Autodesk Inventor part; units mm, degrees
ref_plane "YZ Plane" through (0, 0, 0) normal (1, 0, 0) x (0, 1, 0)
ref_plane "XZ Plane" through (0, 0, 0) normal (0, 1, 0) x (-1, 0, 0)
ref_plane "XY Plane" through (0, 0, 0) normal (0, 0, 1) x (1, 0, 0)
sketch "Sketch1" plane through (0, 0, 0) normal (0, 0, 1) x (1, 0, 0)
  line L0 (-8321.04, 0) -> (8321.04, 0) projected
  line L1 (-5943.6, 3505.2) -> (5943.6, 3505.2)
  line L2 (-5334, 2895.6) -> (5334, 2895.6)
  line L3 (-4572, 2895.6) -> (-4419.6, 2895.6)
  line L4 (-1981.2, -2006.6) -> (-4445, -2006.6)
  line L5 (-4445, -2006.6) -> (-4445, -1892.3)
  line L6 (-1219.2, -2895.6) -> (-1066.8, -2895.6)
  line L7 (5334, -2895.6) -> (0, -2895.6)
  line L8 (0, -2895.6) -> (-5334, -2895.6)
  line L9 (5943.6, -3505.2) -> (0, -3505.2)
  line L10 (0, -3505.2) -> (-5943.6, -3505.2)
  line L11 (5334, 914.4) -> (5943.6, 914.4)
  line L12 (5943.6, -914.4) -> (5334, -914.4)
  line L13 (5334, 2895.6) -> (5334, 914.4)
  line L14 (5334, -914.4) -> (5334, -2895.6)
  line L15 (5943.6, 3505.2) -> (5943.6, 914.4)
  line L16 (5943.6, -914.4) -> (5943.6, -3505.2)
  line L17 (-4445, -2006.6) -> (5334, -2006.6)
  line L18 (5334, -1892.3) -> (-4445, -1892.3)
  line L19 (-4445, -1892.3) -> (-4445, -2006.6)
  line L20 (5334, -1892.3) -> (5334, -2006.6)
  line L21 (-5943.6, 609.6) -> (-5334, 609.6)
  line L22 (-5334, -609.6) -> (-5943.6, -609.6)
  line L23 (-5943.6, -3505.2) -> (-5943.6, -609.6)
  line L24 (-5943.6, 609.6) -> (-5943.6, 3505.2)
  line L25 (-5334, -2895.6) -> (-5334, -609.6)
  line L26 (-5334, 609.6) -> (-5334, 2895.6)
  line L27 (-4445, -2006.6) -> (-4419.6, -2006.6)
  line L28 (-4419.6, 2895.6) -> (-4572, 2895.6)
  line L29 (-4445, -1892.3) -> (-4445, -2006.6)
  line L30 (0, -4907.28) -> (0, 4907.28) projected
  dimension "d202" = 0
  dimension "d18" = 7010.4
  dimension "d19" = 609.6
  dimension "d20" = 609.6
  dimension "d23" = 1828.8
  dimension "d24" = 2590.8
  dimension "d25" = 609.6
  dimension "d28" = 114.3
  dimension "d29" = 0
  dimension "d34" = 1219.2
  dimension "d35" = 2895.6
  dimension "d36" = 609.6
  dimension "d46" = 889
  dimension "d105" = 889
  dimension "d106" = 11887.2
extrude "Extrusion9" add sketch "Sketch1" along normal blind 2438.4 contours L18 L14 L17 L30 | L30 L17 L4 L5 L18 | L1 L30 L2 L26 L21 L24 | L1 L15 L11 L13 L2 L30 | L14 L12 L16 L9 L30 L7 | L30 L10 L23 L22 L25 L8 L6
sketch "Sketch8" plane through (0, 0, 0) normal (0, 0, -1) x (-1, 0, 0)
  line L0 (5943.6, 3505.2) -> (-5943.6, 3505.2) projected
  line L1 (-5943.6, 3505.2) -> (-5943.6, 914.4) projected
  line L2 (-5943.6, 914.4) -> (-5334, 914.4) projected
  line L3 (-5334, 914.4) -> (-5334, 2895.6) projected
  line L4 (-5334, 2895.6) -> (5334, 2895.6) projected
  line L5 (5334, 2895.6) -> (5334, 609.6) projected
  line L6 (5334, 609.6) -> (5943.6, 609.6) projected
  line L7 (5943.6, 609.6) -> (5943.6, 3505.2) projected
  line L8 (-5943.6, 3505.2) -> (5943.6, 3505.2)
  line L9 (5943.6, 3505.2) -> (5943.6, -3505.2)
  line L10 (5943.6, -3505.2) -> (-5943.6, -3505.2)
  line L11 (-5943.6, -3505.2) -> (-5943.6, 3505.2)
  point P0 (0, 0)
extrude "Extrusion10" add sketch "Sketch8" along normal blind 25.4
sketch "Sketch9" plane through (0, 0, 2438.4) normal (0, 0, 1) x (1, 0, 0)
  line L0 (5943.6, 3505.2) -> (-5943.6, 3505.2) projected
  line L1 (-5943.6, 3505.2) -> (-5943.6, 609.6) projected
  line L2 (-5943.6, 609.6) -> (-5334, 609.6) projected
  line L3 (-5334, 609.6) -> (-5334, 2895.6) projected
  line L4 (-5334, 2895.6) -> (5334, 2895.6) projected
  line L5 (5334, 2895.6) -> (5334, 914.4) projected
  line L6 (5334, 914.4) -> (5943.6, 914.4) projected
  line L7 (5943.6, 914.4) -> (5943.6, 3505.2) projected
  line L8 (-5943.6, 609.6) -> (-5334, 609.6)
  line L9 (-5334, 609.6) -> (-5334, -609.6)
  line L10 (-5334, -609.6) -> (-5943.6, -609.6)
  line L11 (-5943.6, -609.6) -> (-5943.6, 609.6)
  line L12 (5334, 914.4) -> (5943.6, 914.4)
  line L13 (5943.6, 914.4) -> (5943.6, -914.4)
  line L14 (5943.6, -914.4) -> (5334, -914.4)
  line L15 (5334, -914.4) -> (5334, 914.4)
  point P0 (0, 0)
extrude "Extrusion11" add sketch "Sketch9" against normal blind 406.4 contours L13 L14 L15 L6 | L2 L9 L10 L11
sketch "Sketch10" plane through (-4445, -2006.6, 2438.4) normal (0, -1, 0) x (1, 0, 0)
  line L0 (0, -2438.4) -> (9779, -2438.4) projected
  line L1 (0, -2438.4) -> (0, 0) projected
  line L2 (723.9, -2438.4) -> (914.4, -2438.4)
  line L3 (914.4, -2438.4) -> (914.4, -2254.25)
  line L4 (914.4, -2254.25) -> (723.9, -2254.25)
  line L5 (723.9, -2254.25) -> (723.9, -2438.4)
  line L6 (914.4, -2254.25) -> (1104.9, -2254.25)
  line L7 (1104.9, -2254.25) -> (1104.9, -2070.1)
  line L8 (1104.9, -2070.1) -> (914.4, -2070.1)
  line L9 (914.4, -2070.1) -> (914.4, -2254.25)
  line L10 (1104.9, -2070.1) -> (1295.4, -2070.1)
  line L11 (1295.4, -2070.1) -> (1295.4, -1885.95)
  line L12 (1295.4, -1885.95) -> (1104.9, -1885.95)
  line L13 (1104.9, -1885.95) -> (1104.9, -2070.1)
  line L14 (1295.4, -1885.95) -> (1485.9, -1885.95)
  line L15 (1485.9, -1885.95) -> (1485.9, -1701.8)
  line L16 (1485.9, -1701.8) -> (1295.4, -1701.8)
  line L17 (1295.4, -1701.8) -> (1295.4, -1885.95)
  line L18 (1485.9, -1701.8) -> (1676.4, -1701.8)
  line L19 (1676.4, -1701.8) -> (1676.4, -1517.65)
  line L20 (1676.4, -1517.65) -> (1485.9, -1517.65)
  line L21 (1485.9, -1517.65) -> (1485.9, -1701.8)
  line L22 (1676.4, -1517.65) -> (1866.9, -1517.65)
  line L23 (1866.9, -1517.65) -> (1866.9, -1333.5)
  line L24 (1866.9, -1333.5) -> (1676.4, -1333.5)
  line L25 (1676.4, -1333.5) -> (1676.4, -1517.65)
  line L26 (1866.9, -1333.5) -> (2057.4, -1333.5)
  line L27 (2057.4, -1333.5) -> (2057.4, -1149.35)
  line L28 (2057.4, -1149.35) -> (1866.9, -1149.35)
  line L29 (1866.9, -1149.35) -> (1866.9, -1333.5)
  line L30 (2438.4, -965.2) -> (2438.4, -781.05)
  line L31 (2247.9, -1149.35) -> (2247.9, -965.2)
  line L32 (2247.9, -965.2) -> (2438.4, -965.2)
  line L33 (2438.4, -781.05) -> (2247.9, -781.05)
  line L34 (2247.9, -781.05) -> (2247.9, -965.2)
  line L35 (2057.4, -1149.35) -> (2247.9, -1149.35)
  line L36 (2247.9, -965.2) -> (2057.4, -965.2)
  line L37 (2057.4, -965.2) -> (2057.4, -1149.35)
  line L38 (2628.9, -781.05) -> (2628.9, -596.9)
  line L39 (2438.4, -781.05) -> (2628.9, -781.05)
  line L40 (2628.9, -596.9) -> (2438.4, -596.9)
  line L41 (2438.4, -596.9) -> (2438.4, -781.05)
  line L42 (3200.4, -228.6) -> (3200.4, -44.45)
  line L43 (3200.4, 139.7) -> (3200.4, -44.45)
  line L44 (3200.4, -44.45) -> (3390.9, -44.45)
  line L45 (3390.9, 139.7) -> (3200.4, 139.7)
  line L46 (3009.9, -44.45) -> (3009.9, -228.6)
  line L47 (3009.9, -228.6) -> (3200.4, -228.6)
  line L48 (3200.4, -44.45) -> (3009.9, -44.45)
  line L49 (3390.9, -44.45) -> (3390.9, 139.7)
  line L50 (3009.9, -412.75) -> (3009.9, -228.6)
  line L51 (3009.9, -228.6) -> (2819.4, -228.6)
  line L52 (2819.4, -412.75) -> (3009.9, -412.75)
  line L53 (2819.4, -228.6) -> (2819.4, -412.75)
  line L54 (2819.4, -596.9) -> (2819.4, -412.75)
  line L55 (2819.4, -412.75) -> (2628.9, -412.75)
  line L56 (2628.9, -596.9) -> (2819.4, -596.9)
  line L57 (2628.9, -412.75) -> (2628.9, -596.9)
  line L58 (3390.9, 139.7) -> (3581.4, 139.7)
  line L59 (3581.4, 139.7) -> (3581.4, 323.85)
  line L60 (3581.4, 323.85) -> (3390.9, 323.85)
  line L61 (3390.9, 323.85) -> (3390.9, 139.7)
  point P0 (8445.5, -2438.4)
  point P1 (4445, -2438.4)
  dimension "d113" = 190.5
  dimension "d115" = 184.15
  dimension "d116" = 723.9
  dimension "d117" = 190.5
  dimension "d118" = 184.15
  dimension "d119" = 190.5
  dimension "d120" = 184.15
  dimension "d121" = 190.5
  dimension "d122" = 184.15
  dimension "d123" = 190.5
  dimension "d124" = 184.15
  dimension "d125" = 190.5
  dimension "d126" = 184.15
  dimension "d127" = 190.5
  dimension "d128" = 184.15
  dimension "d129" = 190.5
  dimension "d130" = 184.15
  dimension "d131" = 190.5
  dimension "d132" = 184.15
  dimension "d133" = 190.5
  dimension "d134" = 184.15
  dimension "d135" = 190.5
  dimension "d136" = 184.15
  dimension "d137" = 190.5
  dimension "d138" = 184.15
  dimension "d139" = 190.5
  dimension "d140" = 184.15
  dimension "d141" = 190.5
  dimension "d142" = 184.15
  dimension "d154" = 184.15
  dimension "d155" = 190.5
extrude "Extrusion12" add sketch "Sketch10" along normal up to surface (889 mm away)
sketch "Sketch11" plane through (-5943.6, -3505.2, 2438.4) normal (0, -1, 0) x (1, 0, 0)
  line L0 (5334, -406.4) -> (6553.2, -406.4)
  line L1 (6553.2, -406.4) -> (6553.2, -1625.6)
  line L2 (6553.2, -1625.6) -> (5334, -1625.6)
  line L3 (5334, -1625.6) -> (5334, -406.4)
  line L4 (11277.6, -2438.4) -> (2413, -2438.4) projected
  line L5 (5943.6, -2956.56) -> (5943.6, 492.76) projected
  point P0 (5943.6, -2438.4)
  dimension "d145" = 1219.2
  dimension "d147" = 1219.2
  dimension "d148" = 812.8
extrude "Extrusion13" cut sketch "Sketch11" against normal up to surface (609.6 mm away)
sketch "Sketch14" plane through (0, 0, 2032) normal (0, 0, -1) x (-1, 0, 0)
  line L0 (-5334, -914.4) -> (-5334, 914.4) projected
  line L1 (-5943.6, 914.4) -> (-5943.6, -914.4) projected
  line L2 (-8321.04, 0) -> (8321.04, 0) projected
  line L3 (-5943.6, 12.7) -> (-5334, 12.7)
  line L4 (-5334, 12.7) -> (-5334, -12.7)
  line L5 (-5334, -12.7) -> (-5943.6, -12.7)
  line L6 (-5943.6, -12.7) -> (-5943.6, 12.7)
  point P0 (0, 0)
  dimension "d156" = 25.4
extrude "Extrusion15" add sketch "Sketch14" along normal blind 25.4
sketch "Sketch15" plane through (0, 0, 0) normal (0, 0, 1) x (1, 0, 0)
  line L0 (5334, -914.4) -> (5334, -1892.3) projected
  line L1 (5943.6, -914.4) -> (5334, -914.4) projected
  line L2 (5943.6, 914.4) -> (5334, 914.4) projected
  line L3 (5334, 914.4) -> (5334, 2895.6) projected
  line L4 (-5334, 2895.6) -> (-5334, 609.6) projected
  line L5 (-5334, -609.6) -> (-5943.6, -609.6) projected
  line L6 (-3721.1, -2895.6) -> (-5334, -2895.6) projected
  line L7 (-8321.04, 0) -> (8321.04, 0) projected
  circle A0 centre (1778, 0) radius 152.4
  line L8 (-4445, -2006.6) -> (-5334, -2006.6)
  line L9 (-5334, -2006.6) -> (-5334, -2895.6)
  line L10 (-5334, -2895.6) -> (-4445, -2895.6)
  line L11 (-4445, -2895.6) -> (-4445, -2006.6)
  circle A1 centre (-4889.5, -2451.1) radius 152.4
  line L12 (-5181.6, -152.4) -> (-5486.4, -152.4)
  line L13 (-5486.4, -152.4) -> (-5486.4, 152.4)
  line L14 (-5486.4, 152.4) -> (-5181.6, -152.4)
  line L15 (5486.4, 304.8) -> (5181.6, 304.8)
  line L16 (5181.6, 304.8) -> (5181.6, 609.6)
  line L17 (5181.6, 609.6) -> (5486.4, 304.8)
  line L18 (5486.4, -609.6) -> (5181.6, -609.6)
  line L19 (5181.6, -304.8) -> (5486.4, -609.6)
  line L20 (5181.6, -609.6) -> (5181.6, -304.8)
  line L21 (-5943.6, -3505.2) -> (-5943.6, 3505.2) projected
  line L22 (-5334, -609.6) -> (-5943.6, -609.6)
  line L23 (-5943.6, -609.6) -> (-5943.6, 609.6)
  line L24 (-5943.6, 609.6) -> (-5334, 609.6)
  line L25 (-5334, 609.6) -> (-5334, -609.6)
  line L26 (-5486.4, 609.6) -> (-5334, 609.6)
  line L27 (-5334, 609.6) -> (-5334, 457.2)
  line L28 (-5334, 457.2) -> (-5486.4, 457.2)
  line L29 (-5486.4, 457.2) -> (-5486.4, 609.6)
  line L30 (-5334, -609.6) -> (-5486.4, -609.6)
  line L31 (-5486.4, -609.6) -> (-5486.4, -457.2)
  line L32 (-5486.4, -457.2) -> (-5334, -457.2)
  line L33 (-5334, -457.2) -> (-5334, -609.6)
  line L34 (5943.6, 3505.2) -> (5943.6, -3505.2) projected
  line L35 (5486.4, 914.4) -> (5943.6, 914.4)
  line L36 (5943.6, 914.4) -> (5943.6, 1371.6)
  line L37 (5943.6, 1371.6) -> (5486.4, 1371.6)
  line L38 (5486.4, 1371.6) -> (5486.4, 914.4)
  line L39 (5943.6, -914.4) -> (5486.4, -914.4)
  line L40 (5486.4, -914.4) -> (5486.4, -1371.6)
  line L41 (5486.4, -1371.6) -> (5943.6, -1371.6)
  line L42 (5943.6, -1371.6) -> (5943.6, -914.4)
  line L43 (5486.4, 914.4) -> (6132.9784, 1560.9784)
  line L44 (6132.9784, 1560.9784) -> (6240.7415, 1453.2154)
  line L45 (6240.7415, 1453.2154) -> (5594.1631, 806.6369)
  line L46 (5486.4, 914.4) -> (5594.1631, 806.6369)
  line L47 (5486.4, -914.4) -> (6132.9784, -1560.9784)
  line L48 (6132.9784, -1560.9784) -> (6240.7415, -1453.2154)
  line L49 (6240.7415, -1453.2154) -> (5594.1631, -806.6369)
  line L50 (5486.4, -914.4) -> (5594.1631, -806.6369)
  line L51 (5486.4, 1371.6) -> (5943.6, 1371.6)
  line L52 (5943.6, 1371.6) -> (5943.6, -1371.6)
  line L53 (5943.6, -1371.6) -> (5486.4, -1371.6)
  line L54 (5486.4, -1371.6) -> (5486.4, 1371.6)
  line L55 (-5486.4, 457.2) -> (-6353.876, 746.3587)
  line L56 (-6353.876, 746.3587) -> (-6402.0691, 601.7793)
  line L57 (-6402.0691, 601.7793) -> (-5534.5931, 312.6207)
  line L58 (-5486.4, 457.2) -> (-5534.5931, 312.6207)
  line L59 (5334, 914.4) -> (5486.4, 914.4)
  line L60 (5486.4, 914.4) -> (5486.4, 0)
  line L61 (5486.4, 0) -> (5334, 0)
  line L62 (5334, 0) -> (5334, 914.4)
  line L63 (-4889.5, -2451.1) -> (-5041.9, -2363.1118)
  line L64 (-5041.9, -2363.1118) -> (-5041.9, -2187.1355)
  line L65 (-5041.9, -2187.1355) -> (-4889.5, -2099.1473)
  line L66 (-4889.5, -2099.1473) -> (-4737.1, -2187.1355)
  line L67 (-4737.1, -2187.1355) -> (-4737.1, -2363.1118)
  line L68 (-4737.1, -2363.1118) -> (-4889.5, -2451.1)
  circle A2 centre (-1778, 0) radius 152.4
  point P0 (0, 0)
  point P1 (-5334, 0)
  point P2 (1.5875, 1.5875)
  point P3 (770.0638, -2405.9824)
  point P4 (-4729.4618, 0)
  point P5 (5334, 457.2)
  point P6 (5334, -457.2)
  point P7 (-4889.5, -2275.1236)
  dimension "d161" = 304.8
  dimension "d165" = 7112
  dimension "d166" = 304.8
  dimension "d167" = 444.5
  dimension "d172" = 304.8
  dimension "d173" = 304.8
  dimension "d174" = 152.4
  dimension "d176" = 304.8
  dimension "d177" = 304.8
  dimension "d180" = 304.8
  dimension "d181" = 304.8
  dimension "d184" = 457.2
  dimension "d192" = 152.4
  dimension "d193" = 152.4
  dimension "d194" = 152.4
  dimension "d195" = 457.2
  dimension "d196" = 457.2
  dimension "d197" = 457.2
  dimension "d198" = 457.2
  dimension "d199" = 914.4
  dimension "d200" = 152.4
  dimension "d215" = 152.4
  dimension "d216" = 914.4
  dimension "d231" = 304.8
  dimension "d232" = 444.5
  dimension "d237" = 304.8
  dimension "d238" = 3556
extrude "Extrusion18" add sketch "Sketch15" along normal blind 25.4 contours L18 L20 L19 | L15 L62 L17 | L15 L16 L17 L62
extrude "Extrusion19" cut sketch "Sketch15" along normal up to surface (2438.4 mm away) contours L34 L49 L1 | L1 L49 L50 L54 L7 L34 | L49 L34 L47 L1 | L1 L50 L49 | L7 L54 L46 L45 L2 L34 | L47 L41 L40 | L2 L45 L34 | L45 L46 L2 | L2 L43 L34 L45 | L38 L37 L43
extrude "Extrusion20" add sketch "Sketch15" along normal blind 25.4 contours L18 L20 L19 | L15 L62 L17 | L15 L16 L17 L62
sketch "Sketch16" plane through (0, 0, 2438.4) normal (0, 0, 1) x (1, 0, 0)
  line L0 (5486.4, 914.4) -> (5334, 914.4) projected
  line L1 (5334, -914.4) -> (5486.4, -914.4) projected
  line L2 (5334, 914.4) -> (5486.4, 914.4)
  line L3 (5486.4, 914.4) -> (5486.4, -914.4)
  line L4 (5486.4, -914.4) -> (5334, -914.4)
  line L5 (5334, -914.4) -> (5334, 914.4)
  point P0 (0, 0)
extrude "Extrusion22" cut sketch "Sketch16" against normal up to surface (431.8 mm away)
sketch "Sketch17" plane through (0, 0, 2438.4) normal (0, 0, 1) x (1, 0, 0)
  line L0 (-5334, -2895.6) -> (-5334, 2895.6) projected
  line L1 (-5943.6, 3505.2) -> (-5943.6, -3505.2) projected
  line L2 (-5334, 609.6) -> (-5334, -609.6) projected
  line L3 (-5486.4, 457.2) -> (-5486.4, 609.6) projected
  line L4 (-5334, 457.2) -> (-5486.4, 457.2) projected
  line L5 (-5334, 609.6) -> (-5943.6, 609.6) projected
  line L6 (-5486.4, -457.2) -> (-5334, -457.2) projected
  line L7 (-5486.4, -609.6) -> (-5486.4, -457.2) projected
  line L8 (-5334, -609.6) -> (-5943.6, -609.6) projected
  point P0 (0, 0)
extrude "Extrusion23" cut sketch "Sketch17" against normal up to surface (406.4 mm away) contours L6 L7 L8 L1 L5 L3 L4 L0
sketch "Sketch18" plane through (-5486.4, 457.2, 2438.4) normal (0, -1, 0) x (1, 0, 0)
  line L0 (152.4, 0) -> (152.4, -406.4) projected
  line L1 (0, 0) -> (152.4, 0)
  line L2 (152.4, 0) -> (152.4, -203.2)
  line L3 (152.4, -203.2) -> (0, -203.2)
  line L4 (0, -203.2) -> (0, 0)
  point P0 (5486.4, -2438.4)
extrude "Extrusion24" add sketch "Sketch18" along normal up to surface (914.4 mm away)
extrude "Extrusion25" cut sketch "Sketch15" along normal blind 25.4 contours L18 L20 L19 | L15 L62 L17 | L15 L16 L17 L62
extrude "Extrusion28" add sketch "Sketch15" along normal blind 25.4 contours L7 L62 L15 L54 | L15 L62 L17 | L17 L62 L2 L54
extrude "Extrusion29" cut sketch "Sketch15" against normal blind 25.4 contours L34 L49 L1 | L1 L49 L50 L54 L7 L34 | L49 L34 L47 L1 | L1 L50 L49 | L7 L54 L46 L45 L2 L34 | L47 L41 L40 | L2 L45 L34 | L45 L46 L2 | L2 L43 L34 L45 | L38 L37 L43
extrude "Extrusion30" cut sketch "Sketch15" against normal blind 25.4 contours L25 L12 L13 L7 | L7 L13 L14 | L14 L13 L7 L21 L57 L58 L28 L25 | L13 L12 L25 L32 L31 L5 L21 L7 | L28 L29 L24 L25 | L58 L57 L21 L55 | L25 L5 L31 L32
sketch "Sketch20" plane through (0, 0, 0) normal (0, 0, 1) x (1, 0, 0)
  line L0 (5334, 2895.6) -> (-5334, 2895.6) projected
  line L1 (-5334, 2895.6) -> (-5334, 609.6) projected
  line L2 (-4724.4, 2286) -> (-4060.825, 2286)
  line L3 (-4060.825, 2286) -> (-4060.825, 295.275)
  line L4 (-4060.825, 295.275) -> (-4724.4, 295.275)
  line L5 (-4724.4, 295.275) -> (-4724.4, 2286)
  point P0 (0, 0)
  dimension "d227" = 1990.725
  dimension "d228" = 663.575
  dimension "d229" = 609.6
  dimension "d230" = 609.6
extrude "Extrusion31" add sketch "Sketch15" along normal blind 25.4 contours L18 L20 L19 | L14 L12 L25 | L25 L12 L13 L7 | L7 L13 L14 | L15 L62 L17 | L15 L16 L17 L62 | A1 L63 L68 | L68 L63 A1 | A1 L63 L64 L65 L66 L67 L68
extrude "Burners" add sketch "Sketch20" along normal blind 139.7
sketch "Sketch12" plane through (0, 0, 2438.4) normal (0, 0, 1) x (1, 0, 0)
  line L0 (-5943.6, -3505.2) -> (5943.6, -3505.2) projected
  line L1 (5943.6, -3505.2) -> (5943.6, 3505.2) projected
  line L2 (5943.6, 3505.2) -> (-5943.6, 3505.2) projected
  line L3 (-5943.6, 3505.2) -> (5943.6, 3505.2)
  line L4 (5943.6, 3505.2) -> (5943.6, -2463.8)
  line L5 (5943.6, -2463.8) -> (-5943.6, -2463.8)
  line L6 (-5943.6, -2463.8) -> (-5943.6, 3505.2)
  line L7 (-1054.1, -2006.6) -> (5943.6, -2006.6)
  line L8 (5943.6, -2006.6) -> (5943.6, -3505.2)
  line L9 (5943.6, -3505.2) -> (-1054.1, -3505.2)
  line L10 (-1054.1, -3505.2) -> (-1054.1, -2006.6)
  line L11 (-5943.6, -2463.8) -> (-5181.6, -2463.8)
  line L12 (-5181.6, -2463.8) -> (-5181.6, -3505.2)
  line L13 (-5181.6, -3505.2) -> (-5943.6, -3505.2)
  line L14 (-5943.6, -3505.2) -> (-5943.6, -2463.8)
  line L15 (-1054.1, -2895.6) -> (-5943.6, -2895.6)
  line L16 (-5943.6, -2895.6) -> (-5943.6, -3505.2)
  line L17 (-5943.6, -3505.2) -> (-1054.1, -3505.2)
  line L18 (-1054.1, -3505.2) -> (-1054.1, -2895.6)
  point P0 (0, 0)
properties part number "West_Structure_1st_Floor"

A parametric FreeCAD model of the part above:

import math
import FreeCAD as App
import Part
import Sketcher
Q = App.Units.Quantity


def add_polygon(sketch, points):
    """Adds a closed chain of lines whose ends are joined by coincident constraints."""
    first, n = sketch.GeometryCount, len(points)
    for a, b in zip(points, points[1:] + points[:1]):
        sketch.addGeometry(Part.LineSegment(App.Vector(*a, 0), App.Vector(*b, 0)), False)
    for i in range(n):
        sketch.addConstraint(Sketcher.Constraint("Coincident", first + i, 2, first + (i + 1) % n, 1))

doc = App.newDocument("Part")
body = doc.addObject("PartDesign::Body", "Body")
body.AllowCompound = True

# Sketch on XY plane
sketch1 = doc.addObject("Sketcher::SketchObject", "Sketch")
body.addObject(sketch1)
sketch1.AttachmentSupport = (doc.XY_Plane, [""])
sketch1.MapMode = "FlatFace"
add_polygon(sketch1, [(5334, -1892.3), (-4445, -1892.3), (-4445, -2006.6), (5334, -2006.6), (5334, -2895.6), (-5334, -2895.6), (-5334, -609.6), (-5943.6, -609.6), (-5943.6, -3505.2), (5943.6, -3505.2), (5943.6, -914.4), (5334, -914.4)])  # lines 0-11
add_polygon(sketch1, [(-5943.6, 3505.2), (-5943.6, 609.6), (-5334, 609.6), (-5334, 2895.6), (5334, 2895.6), (5334, 914.4), (5943.6, 914.4), (5943.6, 3505.2)])  # lines 12-19
sketch1.addConstraint(Sketcher.Constraint("Horizontal", 0))
sketch1.addConstraint(Sketcher.Constraint("Vertical", 1))
sketch1.addConstraint(Sketcher.Constraint("Horizontal", 2))
sketch1.addConstraint(Sketcher.Constraint("Vertical", 3))
sketch1.addConstraint(Sketcher.Constraint("Horizontal", 4))
sketch1.addConstraint(Sketcher.Constraint("Vertical", 5))
sketch1.addConstraint(Sketcher.Constraint("Horizontal", 6))
sketch1.addConstraint(Sketcher.Constraint("Vertical", 7))
sketch1.addConstraint(Sketcher.Constraint("Horizontal", 8))
sketch1.addConstraint(Sketcher.Constraint("Vertical", 9))
sketch1.addConstraint(Sketcher.Constraint("Horizontal", 10))
sketch1.addConstraint(Sketcher.Constraint("Vertical", 11))
sketch1.addConstraint(Sketcher.Constraint("Vertical", 12))
sketch1.addConstraint(Sketcher.Constraint("Horizontal", 13))
sketch1.addConstraint(Sketcher.Constraint("Vertical", 14))
sketch1.addConstraint(Sketcher.Constraint("Horizontal", 15))
sketch1.addConstraint(Sketcher.Constraint("Vertical", 16))
sketch1.addConstraint(Sketcher.Constraint("Horizontal", 17))
sketch1.addConstraint(Sketcher.Constraint("Vertical", 18))
sketch1.addConstraint(Sketcher.Constraint("Horizontal", 19))
sketch1.addConstraint(Sketcher.Constraint("Symmetric", 3, 2, 14, 2, -1, 1))
sketch1.addConstraint(Sketcher.Constraint("Symmetric", 7, 2, 18, 2, -1, 1))
sketch1.addConstraint(Sketcher.Constraint("Symmetric", 6, 2, 12, 2, -1))
sketch1.addConstraint(Sketcher.Constraint("Symmetric", 10, 2, 16, 2, -1))
sketch1.addConstraint(Sketcher.Constraint("Vertical", 3, 2, 10, 2))
sketch1.addConstraint(Sketcher.Constraint("Vertical", 5, 2, 13, 2))
sketch1.addConstraint(Sketcher.Constraint("Vertical", 9, 2, 17, 2))
sketch1.addConstraint(Sketcher.Constraint("DistanceX", 6, 2, 6, 1, Q("24 in")))
sketch1.addConstraint(Sketcher.Constraint("DistanceX", 8, 1, 8, 2, Q("468 in")))
sketch1.addConstraint(Sketcher.Constraint("DistanceY", 3, 2, 3, 1, Q("35 in")))
sketch1.addConstraint(Sketcher.Constraint("DistanceY", 7, 2, 7, 1, Q("114 in")))
sketch1.addConstraint(Sketcher.Constraint("DistanceY", 9, 1, 9, 2, Q("102 in")))
sketch1.addConstraint(Sketcher.Constraint("DistanceY", 1, 2, 1, 1, Q("4.5 in")))
sketch1.addConstraint(Sketcher.Constraint("DistanceY", 3, 2, -1, 1, Q("114 in")))
sketch1.addConstraint(Sketcher.Constraint("DistanceY", 5, 2, -1, 1, Q("24 in")))
sketch1.addConstraint(Sketcher.Constraint("DistanceX", 4, 2, 1, 2, Q("35 in")))
pad1 = doc.addObject("PartDesign::Pad", "Pad")
body.addObject(pad1)
pad1.Profile = sketch1
pad1.Length = Q("96 in")

# Sketch on XY plane
sketch2 = doc.addObject("Sketcher::SketchObject", "Sketch001")
body.addObject(sketch2)
sketch2.AttachmentSupport = (doc.XY_Plane, [""])
sketch2.MapMode = "FlatFace"
add_polygon(sketch2, [(-5943.6, 3505.2), (5943.6, 3505.2), (5943.6, -3505.2), (-5943.6, -3505.2)])  # lines 0-3
sketch2.addConstraint(Sketcher.Constraint("Horizontal", 0))
sketch2.addConstraint(Sketcher.Constraint("Vertical", 1))
sketch2.addConstraint(Sketcher.Constraint("Horizontal", 2))
sketch2.addConstraint(Sketcher.Constraint("Vertical", 3))
sketch2.addConstraint(Sketcher.Constraint("Symmetric", 0, 2, 2, 2, -1, 1))
sketch2.addConstraint(Sketcher.Constraint("DistanceX", 0, 1, 0, 2, Q("468 in")))
sketch2.addConstraint(Sketcher.Constraint("DistanceY", 1, 2, 1, 1, Q("276 in")))
pad2 = doc.addObject("PartDesign::Pad", "Pad001")
body.addObject(pad2)
pad2.Profile = sketch2
pad2.Length = Q("1 in")
pad2.Reversed = True

# Sketch on XY plane
sketch3 = doc.addObject("Sketcher::SketchObject", "Sketch002")
body.addObject(sketch3)
sketch3.AttachmentSupport = (doc.XY_Plane, [""])
sketch3.MapMode = "FlatFace"
sketch3.AttachmentOffset = App.Placement(App.Vector(0, 0, 96 * 25.4), App.Rotation())
add_polygon(sketch3, [(5943.6, -914.4), (5943.6, 914.4), (5334, 914.4), (5334, -914.4)])  # lines 0-3
add_polygon(sketch3, [(-5334, 609.6), (-5943.6, 609.6), (-5943.6, -609.6), (-5334, -609.6)])  # lines 4-7
sketch3.addConstraint(Sketcher.Constraint("Vertical", 0))
sketch3.addConstraint(Sketcher.Constraint("Horizontal", 1))
sketch3.addConstraint(Sketcher.Constraint("Vertical", 2))
sketch3.addConstraint(Sketcher.Constraint("Horizontal", 3))
sketch3.addConstraint(Sketcher.Constraint("Horizontal", 4))
sketch3.addConstraint(Sketcher.Constraint("Vertical", 5))
sketch3.addConstraint(Sketcher.Constraint("Horizontal", 6))
sketch3.addConstraint(Sketcher.Constraint("Vertical", 7))
sketch3.addConstraint(Sketcher.Constraint("Equal", 3, 4))
sketch3.addConstraint(Sketcher.Constraint("DistanceX", 1, 2, 1, 1, Q("24 in")))
sketch3.addConstraint(Sketcher.Constraint("DistanceY", 0, 1, 0, 2, Q("72 in")))
sketch3.addConstraint(Sketcher.Constraint("DistanceY", 5, 2, 5, 1, Q("48 in")))
sketch3.addConstraint(Sketcher.Constraint("DistanceX", -1, 1, 0, 2, Q("234 in")))
sketch3.addConstraint(Sketcher.Constraint("DistanceY", -1, 1, 0, 2, Q("36 in")))
sketch3.addConstraint(Sketcher.Constraint("DistanceX", 4, 2, -1, 1, Q("234 in")))
sketch3.addConstraint(Sketcher.Constraint("DistanceY", -1, 1, 4, 2, Q("24 in")))
pad3 = doc.addObject("PartDesign::Pad", "Pad002")
body.addObject(pad3)
pad3.Profile = sketch3
pad3.Length = Q("16 in")
pad3.Reversed = True

# Sketch on XZ plane
sketch4 = doc.addObject("Sketcher::SketchObject", "Sketch003")
body.addObject(sketch4)
sketch4.AttachmentSupport = (doc.XZ_Plane, [""])
sketch4.MapMode = "FlatFace"
sketch4.AttachmentOffset = App.Placement(App.Vector(0, 0, 79 * 25.4), App.Rotation())
add_polygon(sketch4, [(-3721.1, 184.15), (-3721.1, 0), (-3530.6, 0), (-3530.6, 184.15)])  # lines 0-3
add_polygon(sketch4, [(-1054.1, 2762.25), (-1054.1, 2578.1), (-863.6, 2578.1), (-863.6, 2762.25)])  # lines 4-7
add_polygon(sketch4, [(-1244.6, 2578.1), (-1244.6, 2393.95), (-1054.1, 2393.95), (-1054.1, 2578.1)])  # lines 8-11
add_polygon(sketch4, [(-1435.1, 2393.95), (-1435.1, 2209.8), (-1244.6, 2209.8), (-1244.6, 2393.95)])  # lines 12-15
add_polygon(sketch4, [(-1625.6, 2209.8), (-1625.6, 2025.65), (-1435.1, 2025.65), (-1435.1, 2209.8)])  # lines 16-19
add_polygon(sketch4, [(-1816.1, 2025.65), (-1816.1, 1841.5), (-1625.6, 1841.5), (-1625.6, 2025.65)])  # lines 20-23
add_polygon(sketch4, [(-2006.6, 1841.5), (-2006.6, 1657.35), (-1816.1, 1657.35), (-1816.1, 1841.5)])  # lines 24-27
add_polygon(sketch4, [(-2197.1, 1657.35), (-2197.1, 1473.2), (-2006.6, 1473.2), (-2006.6, 1657.35)])  # lines 28-31
add_polygon(sketch4, [(-2387.6, 1473.2), (-2387.6, 1289.05), (-2197.1, 1289.05), (-2197.1, 1473.2)])  # lines 32-35
add_polygon(sketch4, [(-2578.1, 1289.05), (-2578.1, 1104.9), (-2387.6, 1104.9), (-2387.6, 1289.05)])  # lines 36-39
add_polygon(sketch4, [(-2768.6, 1104.9), (-2768.6, 920.75), (-2578.1, 920.75), (-2578.1, 1104.9)])  # lines 40-43
add_polygon(sketch4, [(-2959.1, 920.75), (-2959.1, 736.6), (-2768.6, 736.6), (-2768.6, 920.75)])  # lines 44-47
add_polygon(sketch4, [(-3149.6, 736.6), (-3149.6, 552.45), (-2959.1, 552.45), (-2959.1, 736.6)])  # lines 48-51
add_polygon(sketch4, [(-3340.1, 552.45), (-3340.1, 368.3), (-3149.6, 368.3), (-3149.6, 552.45)])  # lines 52-55
add_polygon(sketch4, [(-3530.6, 368.3), (-3530.6, 184.15), (-3340.1, 184.15), (-3340.1, 368.3)])  # lines 56-59
sketch4.addConstraint(Sketcher.Constraint("Vertical", 0))
sketch4.addConstraint(Sketcher.Constraint("Horizontal", 1))
sketch4.addConstraint(Sketcher.Constraint("Vertical", 2))
sketch4.addConstraint(Sketcher.Constraint("Horizontal", 3))
sketch4.addConstraint(Sketcher.Constraint("Vertical", 4))
sketch4.addConstraint(Sketcher.Constraint("Horizontal", 5))
sketch4.addConstraint(Sketcher.Constraint("Vertical", 6))
sketch4.addConstraint(Sketcher.Constraint("Horizontal", 7))
sketch4.addConstraint(Sketcher.Constraint("Vertical", 8))
sketch4.addConstraint(Sketcher.Constraint("Horizontal", 9))
sketch4.addConstraint(Sketcher.Constraint("Vertical", 10))
sketch4.addConstraint(Sketcher.Constraint("Horizontal", 11))
sketch4.addConstraint(Sketcher.Constraint("Vertical", 12))
sketch4.addConstraint(Sketcher.Constraint("Horizontal", 13))
sketch4.addConstraint(Sketcher.Constraint("Vertical", 14))
sketch4.addConstraint(Sketcher.Constraint("Horizontal", 15))
sketch4.addConstraint(Sketcher.Constraint("Vertical", 16))
sketch4.addConstraint(Sketcher.Constraint("Horizontal", 17))
sketch4.addConstraint(Sketcher.Constraint("Vertical", 18))
sketch4.addConstraint(Sketcher.Constraint("Horizontal", 19))
sketch4.addConstraint(Sketcher.Constraint("Vertical", 20))
sketch4.addConstraint(Sketcher.Constraint("Horizontal", 21))
sketch4.addConstraint(Sketcher.Constraint("Vertical", 22))
sketch4.addConstraint(Sketcher.Constraint("Horizontal", 23))
sketch4.addConstraint(Sketcher.Constraint("Vertical", 24))
sketch4.addConstraint(Sketcher.Constraint("Horizontal", 25))
sketch4.addConstraint(Sketcher.Constraint("Vertical", 26))
sketch4.addConstraint(Sketcher.Constraint("Horizontal", 27))
sketch4.addConstraint(Sketcher.Constraint("Vertical", 28))
sketch4.addConstraint(Sketcher.Constraint("Horizontal", 29))
sketch4.addConstraint(Sketcher.Constraint("Vertical", 30))
sketch4.addConstraint(Sketcher.Constraint("Horizontal", 31))
sketch4.addConstraint(Sketcher.Constraint("Vertical", 32))
sketch4.addConstraint(Sketcher.Constraint("Horizontal", 33))
sketch4.addConstraint(Sketcher.Constraint("Vertical", 34))
sketch4.addConstraint(Sketcher.Constraint("Horizontal", 35))
sketch4.addConstraint(Sketcher.Constraint("Vertical", 36))
sketch4.addConstraint(Sketcher.Constraint("Horizontal", 37))
sketch4.addConstraint(Sketcher.Constraint("Vertical", 38))
sketch4.addConstraint(Sketcher.Constraint("Horizontal", 39))
sketch4.addConstraint(Sketcher.Constraint("Vertical", 40))
sketch4.addConstraint(Sketcher.Constraint("Horizontal", 41))
sketch4.addConstraint(Sketcher.Constraint("Vertical", 42))
sketch4.addConstraint(Sketcher.Constraint("Horizontal", 43))
sketch4.addConstraint(Sketcher.Constraint("Vertical", 44))
sketch4.addConstraint(Sketcher.Constraint("Horizontal", 45))
sketch4.addConstraint(Sketcher.Constraint("Vertical", 46))
sketch4.addConstraint(Sketcher.Constraint("Horizontal", 47))
sketch4.addConstraint(Sketcher.Constraint("Vertical", 48))
sketch4.addConstraint(Sketcher.Constraint("Horizontal", 49))
sketch4.addConstraint(Sketcher.Constraint("Vertical", 50))
sketch4.addConstraint(Sketcher.Constraint("Horizontal", 51))
sketch4.addConstraint(Sketcher.Constraint("Vertical", 52))
sketch4.addConstraint(Sketcher.Constraint("Horizontal", 53))
sketch4.addConstraint(Sketcher.Constraint("Vertical", 54))
sketch4.addConstraint(Sketcher.Constraint("Horizontal", 55))
sketch4.addConstraint(Sketcher.Constraint("Vertical", 56))
sketch4.addConstraint(Sketcher.Constraint("Horizontal", 57))
sketch4.addConstraint(Sketcher.Constraint("Vertical", 58))
sketch4.addConstraint(Sketcher.Constraint("Horizontal", 59))
sketch4.addConstraint(Sketcher.Constraint("Coincident", 10, 2, 4, 2))
sketch4.addConstraint(Sketcher.Constraint("Coincident", 14, 2, 8, 2))
sketch4.addConstraint(Sketcher.Constraint("Coincident", 18, 2, 12, 2))
sketch4.addConstraint(Sketcher.Constraint("Coincident", 22, 2, 16, 2))
sketch4.addConstraint(Sketcher.Constraint("Coincident", 26, 2, 20, 2))
sketch4.addConstraint(Sketcher.Constraint("Coincident", 30, 2, 24, 2))
sketch4.addConstraint(Sketcher.Constraint("Coincident", 34, 2, 28, 2))
sketch4.addConstraint(Sketcher.Constraint("Coincident", 38, 2, 32, 2))
sketch4.addConstraint(Sketcher.Constraint("Coincident", 42, 2, 36, 2))
sketch4.addConstraint(Sketcher.Constraint("Coincident", 46, 2, 40, 2))
sketch4.addConstraint(Sketcher.Constraint("Coincident", 50, 2, 44, 2))
sketch4.addConstraint(Sketcher.Constraint("Coincident", 54, 2, 48, 2))
sketch4.addConstraint(Sketcher.Constraint("Coincident", 56, 2, 2, 2))
sketch4.addConstraint(Sketcher.Constraint("Coincident", 58, 2, 52, 2))
sketch4.addConstraint(Sketcher.Constraint("PointOnObject", 0, 2, -1))
sketch4.addConstraint(Sketcher.Constraint("Equal", 3, 5))
sketch4.addConstraint(Sketcher.Constraint("Equal", 7, 9))
sketch4.addConstraint(Sketcher.Constraint("Equal", 11, 13))
sketch4.addConstraint(Sketcher.Constraint("Equal", 15, 17))
sketch4.addConstraint(Sketcher.Constraint("Equal", 19, 21))
sketch4.addConstraint(Sketcher.Constraint("Equal", 23, 25))
sketch4.addConstraint(Sketcher.Constraint("Equal", 27, 29))
sketch4.addConstraint(Sketcher.Constraint("Equal", 31, 33))
sketch4.addConstraint(Sketcher.Constraint("Equal", 35, 37))
sketch4.addConstraint(Sketcher.Constraint("Equal", 39, 41))
sketch4.addConstraint(Sketcher.Constraint("Equal", 43, 45))
sketch4.addConstraint(Sketcher.Constraint("Equal", 47, 49))
sketch4.addConstraint(Sketcher.Constraint("Equal", 51, 53))
sketch4.addConstraint(Sketcher.Constraint("Equal", 55, 57))
sketch4.addConstraint(Sketcher.Constraint("Equal", 2, 4))
sketch4.addConstraint(Sketcher.Constraint("Equal", 6, 8))
sketch4.addConstraint(Sketcher.Constraint("Equal", 10, 12))
sketch4.addConstraint(Sketcher.Constraint("Equal", 14, 16))
sketch4.addConstraint(Sketcher.Constraint("Equal", 18, 20))
sketch4.addConstraint(Sketcher.Constraint("Equal", 22, 24))
sketch4.addConstraint(Sketcher.Constraint("Equal", 26, 28))
sketch4.addConstraint(Sketcher.Constraint("Equal", 30, 32))
sketch4.addConstraint(Sketcher.Constraint("Equal", 34, 36))
sketch4.addConstraint(Sketcher.Constraint("Equal", 38, 40))
sketch4.addConstraint(Sketcher.Constraint("Equal", 42, 44))
sketch4.addConstraint(Sketcher.Constraint("Equal", 46, 48))
sketch4.addConstraint(Sketcher.Constraint("Equal", 50, 52))
sketch4.addConstraint(Sketcher.Constraint("Equal", 54, 56))
sketch4.addConstraint(Sketcher.Constraint("DistanceX", 1, 1, 1, 2, Q("7.5 in")))
sketch4.addConstraint(Sketcher.Constraint("DistanceY", 0, 2, 0, 1, Q("7.25 in")))
sketch4.addConstraint(Sketcher.Constraint("DistanceX", 1, 2, -1, 1, Q("139 in")))
pad4 = doc.addObject("PartDesign::Pad", "Pad003")
body.addObject(pad4)
pad4.Profile = sketch4
pad4.Length = Q("35 in")

# Sketch on XZ plane
sketch5 = doc.addObject("Sketcher::SketchObject", "Sketch004")
body.addObject(sketch5)
sketch5.AttachmentSupport = (doc.XZ_Plane, [""])
sketch5.MapMode = "FlatFace"
sketch5.AttachmentOffset = App.Placement(App.Vector(0, 0, 138 * 25.4), App.Rotation())
add_polygon(sketch5, [(-609.6, 2032), (-609.6, 812.8), (609.6, 812.8), (609.6, 2032)])  # lines 0-3
sketch5.addConstraint(Sketcher.Constraint("Vertical", 0))
sketch5.addConstraint(Sketcher.Constraint("Horizontal", 1))
sketch5.addConstraint(Sketcher.Constraint("Vertical", 2))
sketch5.addConstraint(Sketcher.Constraint("Horizontal", 3))
sketch5.addConstraint(Sketcher.Constraint("Equal", 3, 0))
sketch5.addConstraint(Sketcher.Constraint("DistanceX", 1, 1, 1, 2, Q("48 in")))
sketch5.addConstraint(Sketcher.Constraint("DistanceY", -1, 1, 0, 2, Q("32 in")))
sketch5.addConstraint(Sketcher.Constraint("DistanceX", 0, 2, -1, 1, Q("24 in")))
pocket1 = doc.addObject("PartDesign::Pocket", "Pocket")
body.addObject(pocket1)
pocket1.Profile = sketch5
pocket1.Length = Q("24 in")

# Sketch on XY plane
sketch6 = doc.addObject("Sketcher::SketchObject", "Sketch005")
body.addObject(sketch6)
sketch6.AttachmentSupport = (doc.XY_Plane, [""])
sketch6.MapMode = "FlatFace"
sketch6.AttachmentOffset = App.Placement(App.Vector(0, 0, 80 * 25.4), App.Rotation())
add_polygon(sketch6, [(5943.6, -12.7), (5334, -12.7), (5334, 12.7), (5943.6, 12.7)])  # lines 0-3
sketch6.addConstraint(Sketcher.Constraint("Horizontal", 0))
sketch6.addConstraint(Sketcher.Constraint("Vertical", 1))
sketch6.addConstraint(Sketcher.Constraint("Horizontal", 2))
sketch6.addConstraint(Sketcher.Constraint("Vertical", 3))
sketch6.addConstraint(Sketcher.Constraint("DistanceY", 1, 1, 1, 2, Q("1 in")))
sketch6.addConstraint(Sketcher.Constraint("DistanceX", 0, 2, 0, 1, Q("24 in")))
sketch6.addConstraint(Sketcher.Constraint("DistanceX", -1, 1, 0, 2, Q("210 in")))
sketch6.addConstraint(Sketcher.Constraint("DistanceY", 0, 2, -1, 1, Q("0.5 in")))
pad5 = doc.addObject("PartDesign::Pad", "Pad004")
body.addObject(pad5)
pad5.Profile = sketch6
pad5.Length = Q("1 in")
pad5.Reversed = True

# Sketch on XY plane
sketch7 = doc.addObject("Sketcher::SketchObject", "Sketch006")
body.addObject(sketch7)
sketch7.AttachmentSupport = (doc.XY_Plane, [""])
sketch7.MapMode = "FlatFace"
add_polygon(sketch7, [(5181.6, -609.6), (5486.4, -609.6), (5181.6, -304.8)])  # lines 0-2
add_polygon(sketch7, [(5486.4, 304.8), (5181.6, 609.6), (5181.6, 304.8)])  # lines 3-5
sketch7.addConstraint(Sketcher.Constraint("Horizontal", 0))
sketch7.addConstraint(Sketcher.Constraint("Vertical", 2))
sketch7.addConstraint(Sketcher.Constraint("Vertical", 4))
sketch7.addConstraint(Sketcher.Constraint("Horizontal", 5))
sketch7.addConstraint(Sketcher.Constraint("Symmetric", 2, 2, 3, 2, -1))
sketch7.addConstraint(Sketcher.Constraint("Parallel", 1, 3))
sketch7.addConstraint(Sketcher.Constraint("Vertical", 0, 2, 5, 2))
sketch7.addConstraint(Sketcher.Constraint("Equal", 5, 2))
sketch7.addConstraint(Sketcher.Constraint("DistanceX", 0, 1, 0, 2, Q("12 in")))
sketch7.addConstraint(Sketcher.Constraint("DistanceY", 1, 2, -1, 1, Q("12 in")))
sketch7.addConstraint(Sketcher.Constraint("DistanceX", -1, 1, 0, 2, Q("216 in")))
pad6 = doc.addObject("PartDesign::Pad", "Pad005")
body.addObject(pad6)
pad6.Profile = sketch7
pad6.Length = Q("1 in")

# Sketch on XY plane
sketch8 = doc.addObject("Sketcher::SketchObject", "Sketch007")
body.addObject(sketch8)
sketch8.AttachmentSupport = (doc.XY_Plane, [""])
sketch8.MapMode = "FlatFace"
add_polygon(sketch8, [(5943.6, 1371.6), (5486.4, 1371.6), (5486.4, -1371.6), (5943.6, -1371.6)])  # lines 0-3
sketch8.addConstraint(Sketcher.Constraint("Horizontal", 0))
sketch8.addConstraint(Sketcher.Constraint("Vertical", 1))
sketch8.addConstraint(Sketcher.Constraint("Horizontal", 2))
sketch8.addConstraint(Sketcher.Constraint("Vertical", 3))
sketch8.addConstraint(Sketcher.Constraint("DistanceX", 0, 2, 0, 1, Q("18 in")))
sketch8.addConstraint(Sketcher.Constraint("DistanceY", 1, 2, 1, 1, Q("108 in")))
sketch8.addConstraint(Sketcher.Constraint("DistanceX", -1, 1, 0, 2, Q("216 in")))
sketch8.addConstraint(Sketcher.Constraint("DistanceY", -1, 1, 0, 2, Q("54 in")))
pocket2 = doc.addObject("PartDesign::Pocket", "Pocket001")
body.addObject(pocket2)
pocket2.Profile = sketch8
pocket2.Length = Q("96 in")
pocket2.Reversed = True

# Sketch on XY plane
sketch9 = doc.addObject("Sketcher::SketchObject", "Sketch008")
body.addObject(sketch9)
sketch9.AttachmentSupport = (doc.XY_Plane, [""])
sketch9.MapMode = "FlatFace"
add_polygon(sketch9, [(5181.6, -609.6), (5486.4, -609.6), (5181.6, -304.8)])  # lines 0-2
add_polygon(sketch9, [(5486.4, 304.8), (5181.6, 609.6), (5181.6, 304.8)])  # lines 3-5
sketch9.addConstraint(Sketcher.Constraint("Horizontal", 0))
sketch9.addConstraint(Sketcher.Constraint("Vertical", 2))
sketch9.addConstraint(Sketcher.Constraint("Vertical", 4))
sketch9.addConstraint(Sketcher.Constraint("Horizontal", 5))
sketch9.addConstraint(Sketcher.Constraint("Symmetric", 2, 2, 3, 2, -1))
sketch9.addConstraint(Sketcher.Constraint("Parallel", 1, 3))
sketch9.addConstraint(Sketcher.Constraint("Vertical", 0, 2, 5, 2))
sketch9.addConstraint(Sketcher.Constraint("Equal", 5, 2))
sketch9.addConstraint(Sketcher.Constraint("DistanceX", 0, 1, 0, 2, Q("12 in")))
sketch9.addConstraint(Sketcher.Constraint("DistanceY", 1, 2, -1, 1, Q("12 in")))
sketch9.addConstraint(Sketcher.Constraint("DistanceX", -1, 1, 0, 2, Q("216 in")))
pad7 = doc.addObject("PartDesign::Pad", "Pad006")
body.addObject(pad7)
pad7.Profile = sketch9
pad7.Length = Q("1 in")

# Sketch on XY plane
sketch10 = doc.addObject("Sketcher::SketchObject", "Sketch009")
body.addObject(sketch10)
sketch10.AttachmentSupport = (doc.XY_Plane, [""])
sketch10.MapMode = "FlatFace"
sketch10.AttachmentOffset = App.Placement(App.Vector(0, 0, 96 * 25.4), App.Rotation())
add_polygon(sketch10, [(5486.4, -914.4), (5486.4, 914.4), (5334, 914.4), (5334, -914.4)])  # lines 0-3
sketch10.addConstraint(Sketcher.Constraint("Vertical", 0))
sketch10.addConstraint(Sketcher.Constraint("Horizontal", 1))
sketch10.addConstraint(Sketcher.Constraint("Vertical", 2))
sketch10.addConstraint(Sketcher.Constraint("Horizontal", 3))
sketch10.addConstraint(Sketcher.Constraint("DistanceX", 1, 2, 1, 1, Q("6 in")))
sketch10.addConstraint(Sketcher.Constraint("DistanceY", 0, 1, 0, 2, Q("72 in")))
sketch10.addConstraint(Sketcher.Constraint("DistanceX", -1, 1, 0, 2, Q("216 in")))
sketch10.addConstraint(Sketcher.Constraint("DistanceY", -1, 1, 0, 2, Q("36 in")))
pocket3 = doc.addObject("PartDesign::Pocket", "Pocket002")
body.addObject(pocket3)
pocket3.Profile = sketch10
pocket3.Length = Q("17 in")

# Sketch on XY plane
sketch11 = doc.addObject("Sketcher::SketchObject", "Sketch010")
body.addObject(sketch11)
sketch11.AttachmentSupport = (doc.XY_Plane, [""])
sketch11.MapMode = "FlatFace"
sketch11.AttachmentOffset = App.Placement(App.Vector(0, 0, 96 * 25.4), App.Rotation())
add_polygon(sketch11, [(-5486.4, -457.2), (-5334, -457.2), (-5334, 457.2), (-5486.4, 457.2), (-5486.4, 609.6), (-5943.6, 609.6), (-5943.6, -609.6), (-5486.4, -609.6)])  # lines 0-7
sketch11.addConstraint(Sketcher.Constraint("Horizontal", 0))
sketch11.addConstraint(Sketcher.Constraint("Vertical", 1))
sketch11.addConstraint(Sketcher.Constraint("Horizontal", 2))
sketch11.addConstraint(Sketcher.Constraint("Vertical", 3))
sketch11.addConstraint(Sketcher.Constraint("Horizontal", 4))
sketch11.addConstraint(Sketcher.Constraint("Vertical", 5))
sketch11.addConstraint(Sketcher.Constraint("Horizontal", 6))
sketch11.addConstraint(Sketcher.Constraint("Vertical", 7))
sketch11.addConstraint(Sketcher.Constraint("Symmetric", 3, 2, 6, 2, -1))
sketch11.addConstraint(Sketcher.Constraint("Equal", 2, 3))
sketch11.addConstraint(Sketcher.Constraint("Equal", 3, 7))
sketch11.addConstraint(Sketcher.Constraint("DistanceX", 0, 1, 0, 2, Q("6 in")))
sketch11.addConstraint(Sketcher.Constraint("DistanceX", 4, 2, 4, 1, Q("18 in")))
sketch11.addConstraint(Sketcher.Constraint("DistanceY", 1, 1, 1, 2, Q("36 in")))
sketch11.addConstraint(Sketcher.Constraint("DistanceX", 0, 2, -1, 1, Q("210 in")))
pocket4 = doc.addObject("PartDesign::Pocket", "Pocket003")
body.addObject(pocket4)
pocket4.Profile = sketch11
pocket4.Length = Q("16 in")

# Sketch on XZ plane
sketch12 = doc.addObject("Sketcher::SketchObject", "Sketch011")
body.addObject(sketch12)
sketch12.AttachmentSupport = (doc.XZ_Plane, [""])
sketch12.MapMode = "FlatFace"
sketch12.AttachmentOffset = App.Placement(App.Vector(0, 0, -18 * 25.4), App.Rotation())
add_polygon(sketch12, [(-5334, 2235.2), (-5334, 2438.4), (-5486.4, 2438.4), (-5486.4, 2235.2)])  # lines 0-3
sketch12.addConstraint(Sketcher.Constraint("Vertical", 0))
sketch12.addConstraint(Sketcher.Constraint("Horizontal", 1))
sketch12.addConstraint(Sketcher.Constraint("Vertical", 2))
sketch12.addConstraint(Sketcher.Constraint("Horizontal", 3))
sketch12.addConstraint(Sketcher.Constraint("DistanceX", 1, 2, 1, 1, Q("6 in")))
sketch12.addConstraint(Sketcher.Constraint("DistanceY", 0, 1, 0, 2, Q("8 in")))
sketch12.addConstraint(Sketcher.Constraint("DistanceX", 0, 2, -1, 1, Q("210 in")))
sketch12.addConstraint(Sketcher.Constraint("DistanceY", -1, 1, 0, 2, Q("96 in")))
pad8 = doc.addObject("PartDesign::Pad", "Pad007")
body.addObject(pad8)
pad8.Profile = sketch12
pad8.Length = Q("36 in")

# Sketch on XY plane
sketch13 = doc.addObject("Sketcher::SketchObject", "Sketch012")
body.addObject(sketch13)
sketch13.AttachmentSupport = (doc.XY_Plane, [""])
sketch13.MapMode = "FlatFace"
add_polygon(sketch13, [(5181.6, -609.6), (5486.4, -609.6), (5181.6, -304.8)])  # lines 0-2
add_polygon(sketch13, [(5486.4, 304.8), (5181.6, 609.6), (5181.6, 304.8)])  # lines 3-5
sketch13.addConstraint(Sketcher.Constraint("Horizontal", 0))
sketch13.addConstraint(Sketcher.Constraint("Vertical", 2))
sketch13.addConstraint(Sketcher.Constraint("Vertical", 4))
sketch13.addConstraint(Sketcher.Constraint("Horizontal", 5))
sketch13.addConstraint(Sketcher.Constraint("Symmetric", 2, 2, 3, 2, -1))
sketch13.addConstraint(Sketcher.Constraint("Parallel", 1, 3))
sketch13.addConstraint(Sketcher.Constraint("Vertical", 0, 2, 5, 2))
sketch13.addConstraint(Sketcher.Constraint("Equal", 5, 2))
sketch13.addConstraint(Sketcher.Constraint("DistanceX", 0, 1, 0, 2, Q("12 in")))
sketch13.addConstraint(Sketcher.Constraint("DistanceY", 1, 2, -1, 1, Q("12 in")))
sketch13.addConstraint(Sketcher.Constraint("DistanceX", -1, 1, 0, 2, Q("216 in")))
pocket5 = doc.addObject("PartDesign::Pocket", "Pocket004")
body.addObject(pocket5)
pocket5.Profile = sketch13
pocket5.Length = Q("1 in")
pocket5.Reversed = True

# Sketch on XY plane
sketch14 = doc.addObject("Sketcher::SketchObject", "Sketch013")
body.addObject(sketch14)
sketch14.AttachmentSupport = (doc.XY_Plane, [""])
sketch14.MapMode = "FlatFace"
add_polygon(sketch14, [(5334, 0), (5486.4, 0), (5486.4, 914.4), (5334, 914.4)])  # lines 0-3
sketch14.addConstraint(Sketcher.Constraint("Horizontal", 0))
sketch14.addConstraint(Sketcher.Constraint("Vertical", 1))
sketch14.addConstraint(Sketcher.Constraint("Horizontal", 2))
sketch14.addConstraint(Sketcher.Constraint("Vertical", 3))
sketch14.addConstraint(Sketcher.Constraint("PointOnObject", 0, 2, -1))
sketch14.addConstraint(Sketcher.Constraint("DistanceX", 0, 1, 0, 2, Q("6 in")))
sketch14.addConstraint(Sketcher.Constraint("DistanceY", 1, 1, 1, 2, Q("36 in")))
sketch14.addConstraint(Sketcher.Constraint("DistanceX", -1, 1, 0, 2, Q("216 in")))
pad9 = doc.addObject("PartDesign::Pad", "Pad008")
body.addObject(pad9)
pad9.Profile = sketch14
pad9.Length = Q("1 in")

# Sketch on XY plane
sketch15 = doc.addObject("Sketcher::SketchObject", "Sketch014")
body.addObject(sketch15)
sketch15.AttachmentSupport = (doc.XY_Plane, [""])
sketch15.MapMode = "FlatFace"
add_polygon(sketch15, [(5943.6, 1371.6), (5486.4, 1371.6), (5486.4, -1371.6), (5943.6, -1371.6)])  # lines 0-3
sketch15.addConstraint(Sketcher.Constraint("Horizontal", 0))
sketch15.addConstraint(Sketcher.Constraint("Vertical", 1))
sketch15.addConstraint(Sketcher.Constraint("Horizontal", 2))
sketch15.addConstraint(Sketcher.Constraint("Vertical", 3))
sketch15.addConstraint(Sketcher.Constraint("DistanceX", 0, 2, 0, 1, Q("18 in")))
sketch15.addConstraint(Sketcher.Constraint("DistanceY", 1, 2, 1, 1, Q("108 in")))
sketch15.addConstraint(Sketcher.Constraint("DistanceX", -1, 1, 0, 2, Q("216 in")))
sketch15.addConstraint(Sketcher.Constraint("DistanceY", -1, 1, 0, 2, Q("54 in")))
pocket6 = doc.addObject("PartDesign::Pocket", "Pocket005")
body.addObject(pocket6)
pocket6.Profile = sketch15
pocket6.Length = Q("1 in")

# Sketch on XY plane
sketch16 = doc.addObject("Sketcher::SketchObject", "Sketch015")
body.addObject(sketch16)
sketch16.AttachmentSupport = (doc.XY_Plane, [""])
sketch16.MapMode = "FlatFace"
add_polygon(sketch16, [(-5334, 609.6), (-5486.4, 609.6), (-5486.4, 457.2), (-5943.6, 609.6), (-5943.6, -609.6), (-5334, -609.6)])  # lines 0-5
sketch16.addConstraint(Sketcher.Constraint("Horizontal", 0))
sketch16.addConstraint(Sketcher.Constraint("Vertical", 1))
sketch16.addConstraint(Sketcher.Constraint("Vertical", 3))
sketch16.addConstraint(Sketcher.Constraint("Horizontal", 4))
sketch16.addConstraint(Sketcher.Constraint("Vertical", 5))
sketch16.addConstraint(Sketcher.Constraint("Horizontal", 0, 2, 2, 2))
sketch16.addConstraint(Sketcher.Constraint("Equal", 0, 1))
sketch16.addConstraint(Sketcher.Constraint("DistanceX", 0, 2, 0, 1, Q("6 in")))
sketch16.addConstraint(Sketcher.Constraint("DistanceY", -1, 1, 1, 2, Q("18 in")))
sketch16.addConstraint(Sketcher.Constraint("DistanceX", 2, 2, 0, 2, Q("18 in")))
sketch16.addConstraint(Sketcher.Constraint("DistanceY", 3, 2, 3, 1, Q("48 in")))
sketch16.addConstraint(Sketcher.Constraint("DistanceX", 0, 2, -1, 1, Q("216 in")))
pocket7 = doc.addObject("PartDesign::Pocket", "Pocket006")
body.addObject(pocket7)
pocket7.Profile = sketch16
pocket7.Length = Q("1 in")

# Sketch on XY plane
sketch17 = doc.addObject("Sketcher::SketchObject", "Sketch016")
body.addObject(sketch17)
sketch17.AttachmentSupport = (doc.XY_Plane, [""])
sketch17.MapMode = "FlatFace"
add_polygon(sketch17, [(5181.6, -609.6), (5486.4, -609.6), (5181.6, -304.8)])  # lines 0-2
add_polygon(sketch17, [(-5181.6, -152.4), (-5486.4, 152.4), (-5486.4, -152.4)])  # lines 3-5
add_polygon(sketch17, [(5486.4, 304.8), (5181.6, 609.6), (5181.6, 304.8)])  # lines 6-8
sketch17.addGeometry(Part.ArcOfCircle(Part.Circle(App.Vector(-4889.5, -2451.1, 0), App.Vector(0, 0, 1), 152.4), math.radians(149.999995), math.radians(390.000005)), False)  # 9
sketch17.addGeometry(Part.LineSegment(App.Vector(-4757.517736, -2374.899988, 0), App.Vector(-4737.1, -2363.1118, 0)), False)  # 10
sketch17.addGeometry(Part.LineSegment(App.Vector(-4737.1, -2363.1118, 0), App.Vector(-4737.1, -2187.1355, 0)), False)  # 11
sketch17.addGeometry(Part.LineSegment(App.Vector(-4737.1, -2187.1355, 0), App.Vector(-4889.5, -2099.1473, 0)), False)  # 12
sketch17.addGeometry(Part.LineSegment(App.Vector(-4889.5, -2099.1473, 0), App.Vector(-5041.9, -2187.1355, 0)), False)  # 13
sketch17.addGeometry(Part.LineSegment(App.Vector(-5041.9, -2187.1355, 0), App.Vector(-5041.9, -2363.1118, 0)), False)  # 14
sketch17.addGeometry(Part.LineSegment(App.Vector(-5041.9, -2363.1118, 0), App.Vector(-5021.482264, -2374.899988, 0)), False)  # 15
sketch17.addConstraint(Sketcher.Constraint("Coincident", 9, 2, 10, 1))
sketch17.addConstraint(Sketcher.Constraint("Coincident", 10, 2, 11, 1))
sketch17.addConstraint(Sketcher.Constraint("Coincident", 11, 2, 12, 1))
sketch17.addConstraint(Sketcher.Constraint("Coincident", 12, 2, 13, 1))
sketch17.addConstraint(Sketcher.Constraint("Coincident", 13, 2, 14, 1))
sketch17.addConstraint(Sketcher.Constraint("Coincident", 14, 2, 15, 1))
sketch17.addConstraint(Sketcher.Constraint("Coincident", 15, 2, 9, 1))
sketch17.addConstraint(Sketcher.Constraint("Horizontal", 0))
sketch17.addConstraint(Sketcher.Constraint("Vertical", 2))
sketch17.addConstraint(Sketcher.Constraint("Vertical", 4))
sketch17.addConstraint(Sketcher.Constraint("Horizontal", 5))
sketch17.addConstraint(Sketcher.Constraint("Vertical", 7))
sketch17.addConstraint(Sketcher.Constraint("Horizontal", 8))
sketch17.addConstraint(Sketcher.Constraint("Vertical", 11))
sketch17.addConstraint(Sketcher.Constraint("Vertical", 14))
sketch17.addConstraint(Sketcher.Constraint("Symmetric", 2, 2, 6, 2, -1))
sketch17.addConstraint(Sketcher.Constraint("Parallel", 1, 3))
sketch17.addConstraint(Sketcher.Constraint("Parallel", 3, 6))
sketch17.addConstraint(Sketcher.Constraint("Parallel", 10, 13))
sketch17.addConstraint(Sketcher.Constraint("Parallel", 12, 15))
sketch17.addConstraint(Sketcher.Constraint("Horizontal", 11, 2, 13, 2))
sketch17.addConstraint(Sketcher.Constraint("Horizontal", 10, 2, 14, 2))
sketch17.addConstraint(Sketcher.Constraint("Horizontal", 9, 2, 15, 2))
sketch17.addConstraint(Sketcher.Constraint("Vertical", 0, 2, 8, 2))
sketch17.addConstraint(Sketcher.Constraint("Vertical", 9, 3, 12, 2))
sketch17.addConstraint(Sketcher.Constraint("Equal", 0, 5))
sketch17.addConstraint(Sketcher.Constraint("Equal", 8, 2))
sketch17.addConstraint(Sketcher.Constraint("Radius", 9, Q("6 in")))
sketch17.addConstraint(Sketcher.Constraint("DistanceX", 0, 1, 0, 2, Q("12 in")))
sketch17.addConstraint(Sketcher.Constraint("DistanceY", 1, 2, -1, 1, Q("12 in")))
sketch17.addConstraint(Sketcher.Constraint("DistanceY", -1, 1, 3, 2, Q("6 in")))
sketch17.addConstraint(Sketcher.Constraint("DistanceX", 9, 3, 10, 2, Q("6 in")))
sketch17.addConstraint(Sketcher.Constraint("DistanceX", 5, 2, 10, 2, Q("17.5 in")))
sketch17.addConstraint(Sketcher.Constraint("DistanceX", -1, 1, 0, 2, Q("216 in")))
sketch17.addConstraint(Sketcher.Constraint("DistanceX", 3, 2, -1, 1, Q("216 in")))
sketch17.addConstraint(Sketcher.Constraint("Angle", 10, Q("30 deg")))
sketch17.addConstraint(Sketcher.Constraint("DistanceY", 9, 3, 9, 2, Q("3 in")))
sketch17.addConstraint(Sketcher.Constraint("DistanceY", 9, 3, -1, 1, Q("96.5 in")))
sketch17.addConstraint(Sketcher.Constraint("DistanceY", 11, 1, 11, 2, Q("6.9282 in")))
pad10 = doc.addObject("PartDesign::Pad", "Pad009")
body.addObject(pad10)
pad10.Profile = sketch17
pad10.Length = Q("1 in")

# Sketch on XY plane
sketch18 = doc.addObject("Sketcher::SketchObject", "Sketch017")
body.addObject(sketch18)
sketch18.AttachmentSupport = (doc.XY_Plane, [""])
sketch18.MapMode = "FlatFace"
add_polygon(sketch18, [(-4060.825, 2286), (-4724.4, 2286), (-4724.4, 295.275), (-4060.825, 295.275)])  # lines 0-3
sketch18.addConstraint(Sketcher.Constraint("Horizontal", 0))
sketch18.addConstraint(Sketcher.Constraint("Vertical", 1))
sketch18.addConstraint(Sketcher.Constraint("Horizontal", 2))
sketch18.addConstraint(Sketcher.Constraint("Vertical", 3))
sketch18.addConstraint(Sketcher.Constraint("DistanceX", 0, 2, 0, 1, Q("26.125 in")))
sketch18.addConstraint(Sketcher.Constraint("DistanceY", 1, 2, 1, 1, Q("78.375 in")))
sketch18.addConstraint(Sketcher.Constraint("DistanceX", 0, 2, -1, 1, Q("186 in")))
sketch18.addConstraint(Sketcher.Constraint("DistanceY", -1, 1, 0, 2, Q("90 in")))
pad11 = doc.addObject("PartDesign::Pad", "Pad010")
body.addObject(pad11)
pad11.Profile = sketch18
pad11.Length = Q("5.5 in")

doc.recompute()
